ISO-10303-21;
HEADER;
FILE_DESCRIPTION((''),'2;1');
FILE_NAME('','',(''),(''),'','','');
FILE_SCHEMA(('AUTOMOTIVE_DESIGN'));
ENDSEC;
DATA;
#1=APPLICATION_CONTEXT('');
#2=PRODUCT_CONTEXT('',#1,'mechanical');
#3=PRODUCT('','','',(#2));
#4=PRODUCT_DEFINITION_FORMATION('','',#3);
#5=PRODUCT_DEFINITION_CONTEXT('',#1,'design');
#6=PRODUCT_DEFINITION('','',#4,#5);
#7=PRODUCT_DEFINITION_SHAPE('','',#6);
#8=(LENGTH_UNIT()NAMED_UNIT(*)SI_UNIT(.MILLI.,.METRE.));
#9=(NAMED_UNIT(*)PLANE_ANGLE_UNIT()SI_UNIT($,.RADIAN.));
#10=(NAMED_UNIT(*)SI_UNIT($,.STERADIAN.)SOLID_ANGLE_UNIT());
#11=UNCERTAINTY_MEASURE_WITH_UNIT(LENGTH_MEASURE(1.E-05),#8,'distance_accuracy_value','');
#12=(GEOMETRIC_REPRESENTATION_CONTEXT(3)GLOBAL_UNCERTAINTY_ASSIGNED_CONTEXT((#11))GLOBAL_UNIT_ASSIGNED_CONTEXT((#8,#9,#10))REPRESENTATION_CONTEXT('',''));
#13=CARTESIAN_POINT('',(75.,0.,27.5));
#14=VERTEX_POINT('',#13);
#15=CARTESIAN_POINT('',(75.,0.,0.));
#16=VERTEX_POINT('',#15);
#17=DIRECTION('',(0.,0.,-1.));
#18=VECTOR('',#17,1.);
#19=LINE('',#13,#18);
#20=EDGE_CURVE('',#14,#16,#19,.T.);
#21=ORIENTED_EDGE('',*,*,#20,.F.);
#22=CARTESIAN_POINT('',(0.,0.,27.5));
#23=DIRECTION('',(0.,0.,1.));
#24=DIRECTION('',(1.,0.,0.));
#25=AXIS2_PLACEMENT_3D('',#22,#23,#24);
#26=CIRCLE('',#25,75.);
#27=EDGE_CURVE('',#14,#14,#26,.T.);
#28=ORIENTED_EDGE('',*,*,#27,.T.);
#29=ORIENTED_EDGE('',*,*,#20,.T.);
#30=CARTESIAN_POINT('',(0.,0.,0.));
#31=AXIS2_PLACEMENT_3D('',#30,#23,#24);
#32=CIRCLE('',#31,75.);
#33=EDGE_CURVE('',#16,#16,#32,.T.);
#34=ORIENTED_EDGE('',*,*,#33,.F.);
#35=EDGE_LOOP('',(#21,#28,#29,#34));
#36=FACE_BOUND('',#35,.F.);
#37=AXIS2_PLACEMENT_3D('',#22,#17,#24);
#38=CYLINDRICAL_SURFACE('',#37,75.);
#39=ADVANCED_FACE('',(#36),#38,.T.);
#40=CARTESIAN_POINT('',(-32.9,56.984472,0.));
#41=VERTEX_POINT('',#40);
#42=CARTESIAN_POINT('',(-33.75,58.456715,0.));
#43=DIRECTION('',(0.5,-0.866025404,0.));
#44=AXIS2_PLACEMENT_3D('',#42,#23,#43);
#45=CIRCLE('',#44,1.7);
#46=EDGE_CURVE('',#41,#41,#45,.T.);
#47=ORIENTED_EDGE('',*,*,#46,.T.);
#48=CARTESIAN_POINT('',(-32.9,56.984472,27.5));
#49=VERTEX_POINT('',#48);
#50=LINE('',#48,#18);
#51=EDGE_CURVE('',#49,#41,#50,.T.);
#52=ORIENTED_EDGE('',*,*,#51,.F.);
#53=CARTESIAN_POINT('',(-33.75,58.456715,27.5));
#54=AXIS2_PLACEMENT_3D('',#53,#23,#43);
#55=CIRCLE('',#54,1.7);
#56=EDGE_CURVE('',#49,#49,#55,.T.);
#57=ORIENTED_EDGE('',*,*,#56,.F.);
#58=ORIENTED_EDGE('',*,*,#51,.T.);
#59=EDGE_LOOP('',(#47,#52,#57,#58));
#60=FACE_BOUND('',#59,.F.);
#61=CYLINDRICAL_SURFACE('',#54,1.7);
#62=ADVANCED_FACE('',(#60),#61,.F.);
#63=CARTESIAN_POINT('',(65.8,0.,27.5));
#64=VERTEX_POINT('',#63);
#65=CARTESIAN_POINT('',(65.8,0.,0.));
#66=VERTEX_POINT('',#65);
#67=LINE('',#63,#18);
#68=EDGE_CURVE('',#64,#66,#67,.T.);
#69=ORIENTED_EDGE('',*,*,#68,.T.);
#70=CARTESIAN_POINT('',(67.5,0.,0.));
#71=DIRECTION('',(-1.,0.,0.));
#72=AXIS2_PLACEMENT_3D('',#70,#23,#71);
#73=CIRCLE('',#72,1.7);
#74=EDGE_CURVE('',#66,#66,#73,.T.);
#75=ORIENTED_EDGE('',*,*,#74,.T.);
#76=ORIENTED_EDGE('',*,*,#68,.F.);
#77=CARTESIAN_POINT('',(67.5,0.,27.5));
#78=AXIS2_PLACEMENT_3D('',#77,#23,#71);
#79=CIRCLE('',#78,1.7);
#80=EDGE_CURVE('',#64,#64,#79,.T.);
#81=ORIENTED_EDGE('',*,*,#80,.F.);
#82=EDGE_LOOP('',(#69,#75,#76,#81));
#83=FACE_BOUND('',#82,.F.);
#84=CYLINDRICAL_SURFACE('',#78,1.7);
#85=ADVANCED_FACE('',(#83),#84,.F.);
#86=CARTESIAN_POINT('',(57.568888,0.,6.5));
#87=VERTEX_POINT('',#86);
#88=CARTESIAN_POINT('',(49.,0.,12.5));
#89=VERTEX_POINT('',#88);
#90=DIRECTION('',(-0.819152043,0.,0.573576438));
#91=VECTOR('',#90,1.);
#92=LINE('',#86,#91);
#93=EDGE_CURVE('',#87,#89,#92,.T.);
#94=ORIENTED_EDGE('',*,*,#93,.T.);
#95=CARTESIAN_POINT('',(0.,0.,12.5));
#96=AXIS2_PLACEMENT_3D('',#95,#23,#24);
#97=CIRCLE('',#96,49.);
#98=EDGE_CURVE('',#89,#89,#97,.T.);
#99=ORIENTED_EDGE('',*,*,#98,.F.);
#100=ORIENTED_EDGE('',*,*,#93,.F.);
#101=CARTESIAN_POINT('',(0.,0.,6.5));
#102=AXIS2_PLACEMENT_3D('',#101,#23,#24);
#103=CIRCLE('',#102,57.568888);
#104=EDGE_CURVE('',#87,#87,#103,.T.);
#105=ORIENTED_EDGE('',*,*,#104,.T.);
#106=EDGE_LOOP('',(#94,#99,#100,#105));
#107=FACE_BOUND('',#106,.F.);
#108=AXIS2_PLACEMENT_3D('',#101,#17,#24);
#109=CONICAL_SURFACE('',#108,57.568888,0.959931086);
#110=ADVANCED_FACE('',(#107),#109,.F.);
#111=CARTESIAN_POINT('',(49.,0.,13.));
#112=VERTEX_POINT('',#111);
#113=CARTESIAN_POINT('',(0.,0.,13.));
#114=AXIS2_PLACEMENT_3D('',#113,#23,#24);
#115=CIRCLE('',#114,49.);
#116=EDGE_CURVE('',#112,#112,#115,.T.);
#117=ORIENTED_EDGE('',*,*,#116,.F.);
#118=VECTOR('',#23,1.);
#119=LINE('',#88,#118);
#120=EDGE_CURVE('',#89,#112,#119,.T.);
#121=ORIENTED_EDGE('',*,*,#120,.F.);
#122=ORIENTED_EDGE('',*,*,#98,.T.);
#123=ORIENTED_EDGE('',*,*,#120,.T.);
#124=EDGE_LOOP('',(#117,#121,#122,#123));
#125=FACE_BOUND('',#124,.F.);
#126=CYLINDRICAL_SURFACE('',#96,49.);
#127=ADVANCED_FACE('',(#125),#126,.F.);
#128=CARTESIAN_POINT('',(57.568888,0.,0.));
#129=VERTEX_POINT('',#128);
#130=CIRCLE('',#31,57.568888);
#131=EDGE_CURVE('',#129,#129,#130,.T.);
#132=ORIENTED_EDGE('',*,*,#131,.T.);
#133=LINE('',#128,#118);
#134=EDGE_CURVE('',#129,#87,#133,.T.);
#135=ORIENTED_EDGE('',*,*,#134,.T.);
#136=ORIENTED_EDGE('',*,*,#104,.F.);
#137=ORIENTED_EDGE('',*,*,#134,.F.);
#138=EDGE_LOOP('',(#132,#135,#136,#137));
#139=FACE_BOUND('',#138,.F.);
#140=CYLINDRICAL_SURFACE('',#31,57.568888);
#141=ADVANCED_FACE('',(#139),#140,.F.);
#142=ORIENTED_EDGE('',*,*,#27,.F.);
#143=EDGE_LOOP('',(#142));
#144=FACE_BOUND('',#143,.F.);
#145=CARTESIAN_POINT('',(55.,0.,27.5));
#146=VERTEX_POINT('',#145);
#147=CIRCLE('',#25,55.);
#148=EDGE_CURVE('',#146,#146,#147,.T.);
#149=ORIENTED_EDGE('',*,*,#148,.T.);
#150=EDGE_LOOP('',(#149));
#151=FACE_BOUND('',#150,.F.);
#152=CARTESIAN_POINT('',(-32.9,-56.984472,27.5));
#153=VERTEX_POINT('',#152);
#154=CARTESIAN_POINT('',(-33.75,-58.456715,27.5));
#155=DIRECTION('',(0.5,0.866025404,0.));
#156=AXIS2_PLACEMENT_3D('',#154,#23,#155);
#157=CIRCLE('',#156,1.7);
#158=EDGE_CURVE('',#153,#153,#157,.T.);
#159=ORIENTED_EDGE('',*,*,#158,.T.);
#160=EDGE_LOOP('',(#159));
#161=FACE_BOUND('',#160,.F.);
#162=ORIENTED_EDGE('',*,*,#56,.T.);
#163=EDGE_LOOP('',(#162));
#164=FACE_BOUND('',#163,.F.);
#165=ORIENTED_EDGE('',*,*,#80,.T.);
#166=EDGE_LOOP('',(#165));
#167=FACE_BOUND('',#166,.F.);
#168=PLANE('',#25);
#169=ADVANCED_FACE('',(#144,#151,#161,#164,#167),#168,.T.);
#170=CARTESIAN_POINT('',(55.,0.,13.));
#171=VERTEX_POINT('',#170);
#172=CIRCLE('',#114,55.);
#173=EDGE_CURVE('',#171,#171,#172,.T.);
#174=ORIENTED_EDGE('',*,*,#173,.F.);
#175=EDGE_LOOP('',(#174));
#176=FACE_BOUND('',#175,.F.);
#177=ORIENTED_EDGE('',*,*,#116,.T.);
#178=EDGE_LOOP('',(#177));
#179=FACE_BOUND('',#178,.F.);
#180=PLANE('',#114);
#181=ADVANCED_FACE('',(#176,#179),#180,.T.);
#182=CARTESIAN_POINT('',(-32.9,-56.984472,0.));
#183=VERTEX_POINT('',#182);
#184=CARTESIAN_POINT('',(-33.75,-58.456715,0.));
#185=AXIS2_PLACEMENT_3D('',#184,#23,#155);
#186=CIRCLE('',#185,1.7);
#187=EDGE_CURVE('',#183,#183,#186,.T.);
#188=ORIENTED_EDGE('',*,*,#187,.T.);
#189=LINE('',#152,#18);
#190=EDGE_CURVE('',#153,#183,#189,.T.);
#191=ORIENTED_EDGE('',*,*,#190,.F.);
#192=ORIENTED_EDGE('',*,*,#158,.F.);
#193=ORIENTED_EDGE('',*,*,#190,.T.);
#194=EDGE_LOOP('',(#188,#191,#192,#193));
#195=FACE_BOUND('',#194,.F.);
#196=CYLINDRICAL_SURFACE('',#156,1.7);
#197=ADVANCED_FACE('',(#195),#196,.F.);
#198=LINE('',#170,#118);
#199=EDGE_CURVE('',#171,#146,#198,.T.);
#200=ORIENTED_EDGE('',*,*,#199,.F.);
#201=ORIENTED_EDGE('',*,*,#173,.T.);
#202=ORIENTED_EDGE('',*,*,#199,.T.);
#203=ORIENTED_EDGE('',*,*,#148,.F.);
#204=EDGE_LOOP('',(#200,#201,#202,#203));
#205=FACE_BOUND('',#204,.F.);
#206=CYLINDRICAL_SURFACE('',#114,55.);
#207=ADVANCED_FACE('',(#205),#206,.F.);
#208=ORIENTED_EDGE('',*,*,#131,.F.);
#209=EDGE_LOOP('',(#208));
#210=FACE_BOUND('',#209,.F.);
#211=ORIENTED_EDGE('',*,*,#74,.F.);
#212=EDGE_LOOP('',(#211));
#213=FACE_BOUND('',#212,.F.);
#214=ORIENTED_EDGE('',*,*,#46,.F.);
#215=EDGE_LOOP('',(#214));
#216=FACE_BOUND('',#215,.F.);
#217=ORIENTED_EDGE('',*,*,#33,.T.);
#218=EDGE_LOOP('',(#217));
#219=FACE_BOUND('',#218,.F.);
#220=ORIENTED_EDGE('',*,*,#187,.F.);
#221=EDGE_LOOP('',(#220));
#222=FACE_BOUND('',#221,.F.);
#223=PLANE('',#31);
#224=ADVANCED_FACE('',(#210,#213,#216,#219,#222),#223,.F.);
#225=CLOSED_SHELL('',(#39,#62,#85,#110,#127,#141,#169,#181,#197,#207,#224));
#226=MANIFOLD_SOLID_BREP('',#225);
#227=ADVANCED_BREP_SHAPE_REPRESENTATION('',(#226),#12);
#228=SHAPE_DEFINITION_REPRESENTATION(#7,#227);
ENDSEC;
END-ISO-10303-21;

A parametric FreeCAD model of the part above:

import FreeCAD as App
import Part
import Sketcher
from FreeCAD import Vector
Q = App.Units.Quantity

doc = App.newDocument("Part")
body = doc.addObject("PartDesign::Body", "Body")

sketch1 = doc.addObject("Sketcher::SketchObject", "Sketch")
body.addObject(sketch1)
sketch1.AttachmentSupport = (doc.XZ_Plane, [""])
sketch1.MapMode = "FlatFace"
sketch1.addGeometry(Part.LineSegment(Vector(55, 27.5, 0), Vector(55, 13, 0)), False)
sketch1.addGeometry(Part.LineSegment(Vector(55, 13, 0), Vector(49, 13, 0)), False)
sketch1.addGeometry(Part.LineSegment(Vector(49, 13, 0), Vector(49, 12.5, 0)), False)
sketch1.addGeometry(Part.LineSegment(Vector(49, 12.5, 0), Vector(57.6, 6.5, 0)), False)
sketch1.addGeometry(Part.LineSegment(Vector(57.6, 6.5, 0), Vector(57.6, 0, 0)), False)
sketch1.addGeometry(Part.LineSegment(Vector(57.6, 0, 0), Vector(75, 0, 0)), False)
sketch1.addGeometry(Part.LineSegment(Vector(75, 0, 0), Vector(75, 27.5, 0)), False)
sketch1.addGeometry(Part.LineSegment(Vector(75, 27.5, 0), Vector(55, 27.5, 0)), False)
sketch1.addConstraint(Sketcher.Constraint("Coincident", 0, 2, 1, 1))
sketch1.addConstraint(Sketcher.Constraint("Coincident", 1, 2, 2, 1))
sketch1.addConstraint(Sketcher.Constraint("Coincident", 2, 2, 3, 1))
sketch1.addConstraint(Sketcher.Constraint("Coincident", 3, 2, 4, 1))
sketch1.addConstraint(Sketcher.Constraint("Coincident", 4, 2, 5, 1))
sketch1.addConstraint(Sketcher.Constraint("Coincident", 5, 2, 6, 1))
sketch1.addConstraint(Sketcher.Constraint("Coincident", 6, 2, 7, 1))
sketch1.addConstraint(Sketcher.Constraint("Coincident", 7, 2, 0, 1))
sketch1.addConstraint(Sketcher.Constraint("Vertical", 0))
sketch1.addConstraint(Sketcher.Constraint("Horizontal", 1))
sketch1.addConstraint(Sketcher.Constraint("Vertical", 2))
sketch1.addConstraint(Sketcher.Constraint("Vertical", 4))
sketch1.addConstraint(Sketcher.Constraint("Horizontal", 5))
sketch1.addConstraint(Sketcher.Constraint("Vertical", 6))
sketch1.addConstraint(Sketcher.Constraint("Horizontal", 7))
sketch1.addConstraint(Sketcher.Constraint("PointOnObject", 4, 2, -1))
sketch1.addConstraint(Sketcher.Constraint("DistanceX", 1, 2, 1, 1, Q("6 mm")))
sketch1.addConstraint(Sketcher.Constraint("DistanceX", 7, 2, 7, 1, Q("20 mm")))
sketch1.addConstraint(Sketcher.Constraint("Angle", 3, Q("-35 deg")))
sketch1.addConstraint(Sketcher.Constraint("DistanceY", 0, 2, 0, 1, Q("14.5 mm")))
sketch1.addConstraint(Sketcher.Constraint("DistanceY", 2, 2, 2, 1, Q("0.5 mm")))
sketch1.addConstraint(Sketcher.Constraint("DistanceY", 4, 2, 4, 1, Q("6.5 mm")))
sketch1.addConstraint(Sketcher.Constraint("DistanceY", 6, 1, 6, 2, Q("27.5 mm")))
sketch1.addConstraint(Sketcher.Constraint("DistanceX", -1, 1, 0, 2, Q("55 mm")))
revolution = doc.addObject("PartDesign::Revolution", "Revolution")
body.addObject(revolution)
revolution.Profile = sketch1
revolution.ReferenceAxis = (sketch1, ["V_Axis"])
revolution.Angle = 360

sketch2 = doc.addObject("Sketcher::SketchObject", "Sketch001")
body.addObject(sketch2)
sketch2.AttachmentSupport = (doc.XY_Plane, [""])
sketch2.MapMode = "FlatFace"
sketch2.AttachmentOffset = App.Placement(Vector(0, 0, 27.5), App.Rotation())
sketch2.addGeometry(Part.Circle(Vector(67.5, 0, 0), Vector(0, 0, 1), 1.7), False)
sketch2.addConstraint(Sketcher.Constraint("PointOnObject", 0, 3, -1))
sketch2.addConstraint(Sketcher.Constraint("Diameter", 0, Q("3.4 mm")))
sketch2.addConstraint(Sketcher.Constraint("DistanceX", -1, 1, 0, 3, Q("67.5 mm")))
pocket1 = doc.addObject("PartDesign::Pocket", "Pocket")
body.addObject(pocket1)
pocket1.Profile = sketch2
pocket1.Type = "ThroughAll"
doc.recompute()

polarpattern = doc.addObject("PartDesign::PolarPattern", "PolarPattern")
body.addObject(polarpattern)
polarpattern.Originals = [pocket1]
polarpattern.Axis = (doc.Z_Axis, [""])
polarpattern.Angle = 360
polarpattern.Occurrences = 3
body.Tip = polarpattern

doc.recompute()
